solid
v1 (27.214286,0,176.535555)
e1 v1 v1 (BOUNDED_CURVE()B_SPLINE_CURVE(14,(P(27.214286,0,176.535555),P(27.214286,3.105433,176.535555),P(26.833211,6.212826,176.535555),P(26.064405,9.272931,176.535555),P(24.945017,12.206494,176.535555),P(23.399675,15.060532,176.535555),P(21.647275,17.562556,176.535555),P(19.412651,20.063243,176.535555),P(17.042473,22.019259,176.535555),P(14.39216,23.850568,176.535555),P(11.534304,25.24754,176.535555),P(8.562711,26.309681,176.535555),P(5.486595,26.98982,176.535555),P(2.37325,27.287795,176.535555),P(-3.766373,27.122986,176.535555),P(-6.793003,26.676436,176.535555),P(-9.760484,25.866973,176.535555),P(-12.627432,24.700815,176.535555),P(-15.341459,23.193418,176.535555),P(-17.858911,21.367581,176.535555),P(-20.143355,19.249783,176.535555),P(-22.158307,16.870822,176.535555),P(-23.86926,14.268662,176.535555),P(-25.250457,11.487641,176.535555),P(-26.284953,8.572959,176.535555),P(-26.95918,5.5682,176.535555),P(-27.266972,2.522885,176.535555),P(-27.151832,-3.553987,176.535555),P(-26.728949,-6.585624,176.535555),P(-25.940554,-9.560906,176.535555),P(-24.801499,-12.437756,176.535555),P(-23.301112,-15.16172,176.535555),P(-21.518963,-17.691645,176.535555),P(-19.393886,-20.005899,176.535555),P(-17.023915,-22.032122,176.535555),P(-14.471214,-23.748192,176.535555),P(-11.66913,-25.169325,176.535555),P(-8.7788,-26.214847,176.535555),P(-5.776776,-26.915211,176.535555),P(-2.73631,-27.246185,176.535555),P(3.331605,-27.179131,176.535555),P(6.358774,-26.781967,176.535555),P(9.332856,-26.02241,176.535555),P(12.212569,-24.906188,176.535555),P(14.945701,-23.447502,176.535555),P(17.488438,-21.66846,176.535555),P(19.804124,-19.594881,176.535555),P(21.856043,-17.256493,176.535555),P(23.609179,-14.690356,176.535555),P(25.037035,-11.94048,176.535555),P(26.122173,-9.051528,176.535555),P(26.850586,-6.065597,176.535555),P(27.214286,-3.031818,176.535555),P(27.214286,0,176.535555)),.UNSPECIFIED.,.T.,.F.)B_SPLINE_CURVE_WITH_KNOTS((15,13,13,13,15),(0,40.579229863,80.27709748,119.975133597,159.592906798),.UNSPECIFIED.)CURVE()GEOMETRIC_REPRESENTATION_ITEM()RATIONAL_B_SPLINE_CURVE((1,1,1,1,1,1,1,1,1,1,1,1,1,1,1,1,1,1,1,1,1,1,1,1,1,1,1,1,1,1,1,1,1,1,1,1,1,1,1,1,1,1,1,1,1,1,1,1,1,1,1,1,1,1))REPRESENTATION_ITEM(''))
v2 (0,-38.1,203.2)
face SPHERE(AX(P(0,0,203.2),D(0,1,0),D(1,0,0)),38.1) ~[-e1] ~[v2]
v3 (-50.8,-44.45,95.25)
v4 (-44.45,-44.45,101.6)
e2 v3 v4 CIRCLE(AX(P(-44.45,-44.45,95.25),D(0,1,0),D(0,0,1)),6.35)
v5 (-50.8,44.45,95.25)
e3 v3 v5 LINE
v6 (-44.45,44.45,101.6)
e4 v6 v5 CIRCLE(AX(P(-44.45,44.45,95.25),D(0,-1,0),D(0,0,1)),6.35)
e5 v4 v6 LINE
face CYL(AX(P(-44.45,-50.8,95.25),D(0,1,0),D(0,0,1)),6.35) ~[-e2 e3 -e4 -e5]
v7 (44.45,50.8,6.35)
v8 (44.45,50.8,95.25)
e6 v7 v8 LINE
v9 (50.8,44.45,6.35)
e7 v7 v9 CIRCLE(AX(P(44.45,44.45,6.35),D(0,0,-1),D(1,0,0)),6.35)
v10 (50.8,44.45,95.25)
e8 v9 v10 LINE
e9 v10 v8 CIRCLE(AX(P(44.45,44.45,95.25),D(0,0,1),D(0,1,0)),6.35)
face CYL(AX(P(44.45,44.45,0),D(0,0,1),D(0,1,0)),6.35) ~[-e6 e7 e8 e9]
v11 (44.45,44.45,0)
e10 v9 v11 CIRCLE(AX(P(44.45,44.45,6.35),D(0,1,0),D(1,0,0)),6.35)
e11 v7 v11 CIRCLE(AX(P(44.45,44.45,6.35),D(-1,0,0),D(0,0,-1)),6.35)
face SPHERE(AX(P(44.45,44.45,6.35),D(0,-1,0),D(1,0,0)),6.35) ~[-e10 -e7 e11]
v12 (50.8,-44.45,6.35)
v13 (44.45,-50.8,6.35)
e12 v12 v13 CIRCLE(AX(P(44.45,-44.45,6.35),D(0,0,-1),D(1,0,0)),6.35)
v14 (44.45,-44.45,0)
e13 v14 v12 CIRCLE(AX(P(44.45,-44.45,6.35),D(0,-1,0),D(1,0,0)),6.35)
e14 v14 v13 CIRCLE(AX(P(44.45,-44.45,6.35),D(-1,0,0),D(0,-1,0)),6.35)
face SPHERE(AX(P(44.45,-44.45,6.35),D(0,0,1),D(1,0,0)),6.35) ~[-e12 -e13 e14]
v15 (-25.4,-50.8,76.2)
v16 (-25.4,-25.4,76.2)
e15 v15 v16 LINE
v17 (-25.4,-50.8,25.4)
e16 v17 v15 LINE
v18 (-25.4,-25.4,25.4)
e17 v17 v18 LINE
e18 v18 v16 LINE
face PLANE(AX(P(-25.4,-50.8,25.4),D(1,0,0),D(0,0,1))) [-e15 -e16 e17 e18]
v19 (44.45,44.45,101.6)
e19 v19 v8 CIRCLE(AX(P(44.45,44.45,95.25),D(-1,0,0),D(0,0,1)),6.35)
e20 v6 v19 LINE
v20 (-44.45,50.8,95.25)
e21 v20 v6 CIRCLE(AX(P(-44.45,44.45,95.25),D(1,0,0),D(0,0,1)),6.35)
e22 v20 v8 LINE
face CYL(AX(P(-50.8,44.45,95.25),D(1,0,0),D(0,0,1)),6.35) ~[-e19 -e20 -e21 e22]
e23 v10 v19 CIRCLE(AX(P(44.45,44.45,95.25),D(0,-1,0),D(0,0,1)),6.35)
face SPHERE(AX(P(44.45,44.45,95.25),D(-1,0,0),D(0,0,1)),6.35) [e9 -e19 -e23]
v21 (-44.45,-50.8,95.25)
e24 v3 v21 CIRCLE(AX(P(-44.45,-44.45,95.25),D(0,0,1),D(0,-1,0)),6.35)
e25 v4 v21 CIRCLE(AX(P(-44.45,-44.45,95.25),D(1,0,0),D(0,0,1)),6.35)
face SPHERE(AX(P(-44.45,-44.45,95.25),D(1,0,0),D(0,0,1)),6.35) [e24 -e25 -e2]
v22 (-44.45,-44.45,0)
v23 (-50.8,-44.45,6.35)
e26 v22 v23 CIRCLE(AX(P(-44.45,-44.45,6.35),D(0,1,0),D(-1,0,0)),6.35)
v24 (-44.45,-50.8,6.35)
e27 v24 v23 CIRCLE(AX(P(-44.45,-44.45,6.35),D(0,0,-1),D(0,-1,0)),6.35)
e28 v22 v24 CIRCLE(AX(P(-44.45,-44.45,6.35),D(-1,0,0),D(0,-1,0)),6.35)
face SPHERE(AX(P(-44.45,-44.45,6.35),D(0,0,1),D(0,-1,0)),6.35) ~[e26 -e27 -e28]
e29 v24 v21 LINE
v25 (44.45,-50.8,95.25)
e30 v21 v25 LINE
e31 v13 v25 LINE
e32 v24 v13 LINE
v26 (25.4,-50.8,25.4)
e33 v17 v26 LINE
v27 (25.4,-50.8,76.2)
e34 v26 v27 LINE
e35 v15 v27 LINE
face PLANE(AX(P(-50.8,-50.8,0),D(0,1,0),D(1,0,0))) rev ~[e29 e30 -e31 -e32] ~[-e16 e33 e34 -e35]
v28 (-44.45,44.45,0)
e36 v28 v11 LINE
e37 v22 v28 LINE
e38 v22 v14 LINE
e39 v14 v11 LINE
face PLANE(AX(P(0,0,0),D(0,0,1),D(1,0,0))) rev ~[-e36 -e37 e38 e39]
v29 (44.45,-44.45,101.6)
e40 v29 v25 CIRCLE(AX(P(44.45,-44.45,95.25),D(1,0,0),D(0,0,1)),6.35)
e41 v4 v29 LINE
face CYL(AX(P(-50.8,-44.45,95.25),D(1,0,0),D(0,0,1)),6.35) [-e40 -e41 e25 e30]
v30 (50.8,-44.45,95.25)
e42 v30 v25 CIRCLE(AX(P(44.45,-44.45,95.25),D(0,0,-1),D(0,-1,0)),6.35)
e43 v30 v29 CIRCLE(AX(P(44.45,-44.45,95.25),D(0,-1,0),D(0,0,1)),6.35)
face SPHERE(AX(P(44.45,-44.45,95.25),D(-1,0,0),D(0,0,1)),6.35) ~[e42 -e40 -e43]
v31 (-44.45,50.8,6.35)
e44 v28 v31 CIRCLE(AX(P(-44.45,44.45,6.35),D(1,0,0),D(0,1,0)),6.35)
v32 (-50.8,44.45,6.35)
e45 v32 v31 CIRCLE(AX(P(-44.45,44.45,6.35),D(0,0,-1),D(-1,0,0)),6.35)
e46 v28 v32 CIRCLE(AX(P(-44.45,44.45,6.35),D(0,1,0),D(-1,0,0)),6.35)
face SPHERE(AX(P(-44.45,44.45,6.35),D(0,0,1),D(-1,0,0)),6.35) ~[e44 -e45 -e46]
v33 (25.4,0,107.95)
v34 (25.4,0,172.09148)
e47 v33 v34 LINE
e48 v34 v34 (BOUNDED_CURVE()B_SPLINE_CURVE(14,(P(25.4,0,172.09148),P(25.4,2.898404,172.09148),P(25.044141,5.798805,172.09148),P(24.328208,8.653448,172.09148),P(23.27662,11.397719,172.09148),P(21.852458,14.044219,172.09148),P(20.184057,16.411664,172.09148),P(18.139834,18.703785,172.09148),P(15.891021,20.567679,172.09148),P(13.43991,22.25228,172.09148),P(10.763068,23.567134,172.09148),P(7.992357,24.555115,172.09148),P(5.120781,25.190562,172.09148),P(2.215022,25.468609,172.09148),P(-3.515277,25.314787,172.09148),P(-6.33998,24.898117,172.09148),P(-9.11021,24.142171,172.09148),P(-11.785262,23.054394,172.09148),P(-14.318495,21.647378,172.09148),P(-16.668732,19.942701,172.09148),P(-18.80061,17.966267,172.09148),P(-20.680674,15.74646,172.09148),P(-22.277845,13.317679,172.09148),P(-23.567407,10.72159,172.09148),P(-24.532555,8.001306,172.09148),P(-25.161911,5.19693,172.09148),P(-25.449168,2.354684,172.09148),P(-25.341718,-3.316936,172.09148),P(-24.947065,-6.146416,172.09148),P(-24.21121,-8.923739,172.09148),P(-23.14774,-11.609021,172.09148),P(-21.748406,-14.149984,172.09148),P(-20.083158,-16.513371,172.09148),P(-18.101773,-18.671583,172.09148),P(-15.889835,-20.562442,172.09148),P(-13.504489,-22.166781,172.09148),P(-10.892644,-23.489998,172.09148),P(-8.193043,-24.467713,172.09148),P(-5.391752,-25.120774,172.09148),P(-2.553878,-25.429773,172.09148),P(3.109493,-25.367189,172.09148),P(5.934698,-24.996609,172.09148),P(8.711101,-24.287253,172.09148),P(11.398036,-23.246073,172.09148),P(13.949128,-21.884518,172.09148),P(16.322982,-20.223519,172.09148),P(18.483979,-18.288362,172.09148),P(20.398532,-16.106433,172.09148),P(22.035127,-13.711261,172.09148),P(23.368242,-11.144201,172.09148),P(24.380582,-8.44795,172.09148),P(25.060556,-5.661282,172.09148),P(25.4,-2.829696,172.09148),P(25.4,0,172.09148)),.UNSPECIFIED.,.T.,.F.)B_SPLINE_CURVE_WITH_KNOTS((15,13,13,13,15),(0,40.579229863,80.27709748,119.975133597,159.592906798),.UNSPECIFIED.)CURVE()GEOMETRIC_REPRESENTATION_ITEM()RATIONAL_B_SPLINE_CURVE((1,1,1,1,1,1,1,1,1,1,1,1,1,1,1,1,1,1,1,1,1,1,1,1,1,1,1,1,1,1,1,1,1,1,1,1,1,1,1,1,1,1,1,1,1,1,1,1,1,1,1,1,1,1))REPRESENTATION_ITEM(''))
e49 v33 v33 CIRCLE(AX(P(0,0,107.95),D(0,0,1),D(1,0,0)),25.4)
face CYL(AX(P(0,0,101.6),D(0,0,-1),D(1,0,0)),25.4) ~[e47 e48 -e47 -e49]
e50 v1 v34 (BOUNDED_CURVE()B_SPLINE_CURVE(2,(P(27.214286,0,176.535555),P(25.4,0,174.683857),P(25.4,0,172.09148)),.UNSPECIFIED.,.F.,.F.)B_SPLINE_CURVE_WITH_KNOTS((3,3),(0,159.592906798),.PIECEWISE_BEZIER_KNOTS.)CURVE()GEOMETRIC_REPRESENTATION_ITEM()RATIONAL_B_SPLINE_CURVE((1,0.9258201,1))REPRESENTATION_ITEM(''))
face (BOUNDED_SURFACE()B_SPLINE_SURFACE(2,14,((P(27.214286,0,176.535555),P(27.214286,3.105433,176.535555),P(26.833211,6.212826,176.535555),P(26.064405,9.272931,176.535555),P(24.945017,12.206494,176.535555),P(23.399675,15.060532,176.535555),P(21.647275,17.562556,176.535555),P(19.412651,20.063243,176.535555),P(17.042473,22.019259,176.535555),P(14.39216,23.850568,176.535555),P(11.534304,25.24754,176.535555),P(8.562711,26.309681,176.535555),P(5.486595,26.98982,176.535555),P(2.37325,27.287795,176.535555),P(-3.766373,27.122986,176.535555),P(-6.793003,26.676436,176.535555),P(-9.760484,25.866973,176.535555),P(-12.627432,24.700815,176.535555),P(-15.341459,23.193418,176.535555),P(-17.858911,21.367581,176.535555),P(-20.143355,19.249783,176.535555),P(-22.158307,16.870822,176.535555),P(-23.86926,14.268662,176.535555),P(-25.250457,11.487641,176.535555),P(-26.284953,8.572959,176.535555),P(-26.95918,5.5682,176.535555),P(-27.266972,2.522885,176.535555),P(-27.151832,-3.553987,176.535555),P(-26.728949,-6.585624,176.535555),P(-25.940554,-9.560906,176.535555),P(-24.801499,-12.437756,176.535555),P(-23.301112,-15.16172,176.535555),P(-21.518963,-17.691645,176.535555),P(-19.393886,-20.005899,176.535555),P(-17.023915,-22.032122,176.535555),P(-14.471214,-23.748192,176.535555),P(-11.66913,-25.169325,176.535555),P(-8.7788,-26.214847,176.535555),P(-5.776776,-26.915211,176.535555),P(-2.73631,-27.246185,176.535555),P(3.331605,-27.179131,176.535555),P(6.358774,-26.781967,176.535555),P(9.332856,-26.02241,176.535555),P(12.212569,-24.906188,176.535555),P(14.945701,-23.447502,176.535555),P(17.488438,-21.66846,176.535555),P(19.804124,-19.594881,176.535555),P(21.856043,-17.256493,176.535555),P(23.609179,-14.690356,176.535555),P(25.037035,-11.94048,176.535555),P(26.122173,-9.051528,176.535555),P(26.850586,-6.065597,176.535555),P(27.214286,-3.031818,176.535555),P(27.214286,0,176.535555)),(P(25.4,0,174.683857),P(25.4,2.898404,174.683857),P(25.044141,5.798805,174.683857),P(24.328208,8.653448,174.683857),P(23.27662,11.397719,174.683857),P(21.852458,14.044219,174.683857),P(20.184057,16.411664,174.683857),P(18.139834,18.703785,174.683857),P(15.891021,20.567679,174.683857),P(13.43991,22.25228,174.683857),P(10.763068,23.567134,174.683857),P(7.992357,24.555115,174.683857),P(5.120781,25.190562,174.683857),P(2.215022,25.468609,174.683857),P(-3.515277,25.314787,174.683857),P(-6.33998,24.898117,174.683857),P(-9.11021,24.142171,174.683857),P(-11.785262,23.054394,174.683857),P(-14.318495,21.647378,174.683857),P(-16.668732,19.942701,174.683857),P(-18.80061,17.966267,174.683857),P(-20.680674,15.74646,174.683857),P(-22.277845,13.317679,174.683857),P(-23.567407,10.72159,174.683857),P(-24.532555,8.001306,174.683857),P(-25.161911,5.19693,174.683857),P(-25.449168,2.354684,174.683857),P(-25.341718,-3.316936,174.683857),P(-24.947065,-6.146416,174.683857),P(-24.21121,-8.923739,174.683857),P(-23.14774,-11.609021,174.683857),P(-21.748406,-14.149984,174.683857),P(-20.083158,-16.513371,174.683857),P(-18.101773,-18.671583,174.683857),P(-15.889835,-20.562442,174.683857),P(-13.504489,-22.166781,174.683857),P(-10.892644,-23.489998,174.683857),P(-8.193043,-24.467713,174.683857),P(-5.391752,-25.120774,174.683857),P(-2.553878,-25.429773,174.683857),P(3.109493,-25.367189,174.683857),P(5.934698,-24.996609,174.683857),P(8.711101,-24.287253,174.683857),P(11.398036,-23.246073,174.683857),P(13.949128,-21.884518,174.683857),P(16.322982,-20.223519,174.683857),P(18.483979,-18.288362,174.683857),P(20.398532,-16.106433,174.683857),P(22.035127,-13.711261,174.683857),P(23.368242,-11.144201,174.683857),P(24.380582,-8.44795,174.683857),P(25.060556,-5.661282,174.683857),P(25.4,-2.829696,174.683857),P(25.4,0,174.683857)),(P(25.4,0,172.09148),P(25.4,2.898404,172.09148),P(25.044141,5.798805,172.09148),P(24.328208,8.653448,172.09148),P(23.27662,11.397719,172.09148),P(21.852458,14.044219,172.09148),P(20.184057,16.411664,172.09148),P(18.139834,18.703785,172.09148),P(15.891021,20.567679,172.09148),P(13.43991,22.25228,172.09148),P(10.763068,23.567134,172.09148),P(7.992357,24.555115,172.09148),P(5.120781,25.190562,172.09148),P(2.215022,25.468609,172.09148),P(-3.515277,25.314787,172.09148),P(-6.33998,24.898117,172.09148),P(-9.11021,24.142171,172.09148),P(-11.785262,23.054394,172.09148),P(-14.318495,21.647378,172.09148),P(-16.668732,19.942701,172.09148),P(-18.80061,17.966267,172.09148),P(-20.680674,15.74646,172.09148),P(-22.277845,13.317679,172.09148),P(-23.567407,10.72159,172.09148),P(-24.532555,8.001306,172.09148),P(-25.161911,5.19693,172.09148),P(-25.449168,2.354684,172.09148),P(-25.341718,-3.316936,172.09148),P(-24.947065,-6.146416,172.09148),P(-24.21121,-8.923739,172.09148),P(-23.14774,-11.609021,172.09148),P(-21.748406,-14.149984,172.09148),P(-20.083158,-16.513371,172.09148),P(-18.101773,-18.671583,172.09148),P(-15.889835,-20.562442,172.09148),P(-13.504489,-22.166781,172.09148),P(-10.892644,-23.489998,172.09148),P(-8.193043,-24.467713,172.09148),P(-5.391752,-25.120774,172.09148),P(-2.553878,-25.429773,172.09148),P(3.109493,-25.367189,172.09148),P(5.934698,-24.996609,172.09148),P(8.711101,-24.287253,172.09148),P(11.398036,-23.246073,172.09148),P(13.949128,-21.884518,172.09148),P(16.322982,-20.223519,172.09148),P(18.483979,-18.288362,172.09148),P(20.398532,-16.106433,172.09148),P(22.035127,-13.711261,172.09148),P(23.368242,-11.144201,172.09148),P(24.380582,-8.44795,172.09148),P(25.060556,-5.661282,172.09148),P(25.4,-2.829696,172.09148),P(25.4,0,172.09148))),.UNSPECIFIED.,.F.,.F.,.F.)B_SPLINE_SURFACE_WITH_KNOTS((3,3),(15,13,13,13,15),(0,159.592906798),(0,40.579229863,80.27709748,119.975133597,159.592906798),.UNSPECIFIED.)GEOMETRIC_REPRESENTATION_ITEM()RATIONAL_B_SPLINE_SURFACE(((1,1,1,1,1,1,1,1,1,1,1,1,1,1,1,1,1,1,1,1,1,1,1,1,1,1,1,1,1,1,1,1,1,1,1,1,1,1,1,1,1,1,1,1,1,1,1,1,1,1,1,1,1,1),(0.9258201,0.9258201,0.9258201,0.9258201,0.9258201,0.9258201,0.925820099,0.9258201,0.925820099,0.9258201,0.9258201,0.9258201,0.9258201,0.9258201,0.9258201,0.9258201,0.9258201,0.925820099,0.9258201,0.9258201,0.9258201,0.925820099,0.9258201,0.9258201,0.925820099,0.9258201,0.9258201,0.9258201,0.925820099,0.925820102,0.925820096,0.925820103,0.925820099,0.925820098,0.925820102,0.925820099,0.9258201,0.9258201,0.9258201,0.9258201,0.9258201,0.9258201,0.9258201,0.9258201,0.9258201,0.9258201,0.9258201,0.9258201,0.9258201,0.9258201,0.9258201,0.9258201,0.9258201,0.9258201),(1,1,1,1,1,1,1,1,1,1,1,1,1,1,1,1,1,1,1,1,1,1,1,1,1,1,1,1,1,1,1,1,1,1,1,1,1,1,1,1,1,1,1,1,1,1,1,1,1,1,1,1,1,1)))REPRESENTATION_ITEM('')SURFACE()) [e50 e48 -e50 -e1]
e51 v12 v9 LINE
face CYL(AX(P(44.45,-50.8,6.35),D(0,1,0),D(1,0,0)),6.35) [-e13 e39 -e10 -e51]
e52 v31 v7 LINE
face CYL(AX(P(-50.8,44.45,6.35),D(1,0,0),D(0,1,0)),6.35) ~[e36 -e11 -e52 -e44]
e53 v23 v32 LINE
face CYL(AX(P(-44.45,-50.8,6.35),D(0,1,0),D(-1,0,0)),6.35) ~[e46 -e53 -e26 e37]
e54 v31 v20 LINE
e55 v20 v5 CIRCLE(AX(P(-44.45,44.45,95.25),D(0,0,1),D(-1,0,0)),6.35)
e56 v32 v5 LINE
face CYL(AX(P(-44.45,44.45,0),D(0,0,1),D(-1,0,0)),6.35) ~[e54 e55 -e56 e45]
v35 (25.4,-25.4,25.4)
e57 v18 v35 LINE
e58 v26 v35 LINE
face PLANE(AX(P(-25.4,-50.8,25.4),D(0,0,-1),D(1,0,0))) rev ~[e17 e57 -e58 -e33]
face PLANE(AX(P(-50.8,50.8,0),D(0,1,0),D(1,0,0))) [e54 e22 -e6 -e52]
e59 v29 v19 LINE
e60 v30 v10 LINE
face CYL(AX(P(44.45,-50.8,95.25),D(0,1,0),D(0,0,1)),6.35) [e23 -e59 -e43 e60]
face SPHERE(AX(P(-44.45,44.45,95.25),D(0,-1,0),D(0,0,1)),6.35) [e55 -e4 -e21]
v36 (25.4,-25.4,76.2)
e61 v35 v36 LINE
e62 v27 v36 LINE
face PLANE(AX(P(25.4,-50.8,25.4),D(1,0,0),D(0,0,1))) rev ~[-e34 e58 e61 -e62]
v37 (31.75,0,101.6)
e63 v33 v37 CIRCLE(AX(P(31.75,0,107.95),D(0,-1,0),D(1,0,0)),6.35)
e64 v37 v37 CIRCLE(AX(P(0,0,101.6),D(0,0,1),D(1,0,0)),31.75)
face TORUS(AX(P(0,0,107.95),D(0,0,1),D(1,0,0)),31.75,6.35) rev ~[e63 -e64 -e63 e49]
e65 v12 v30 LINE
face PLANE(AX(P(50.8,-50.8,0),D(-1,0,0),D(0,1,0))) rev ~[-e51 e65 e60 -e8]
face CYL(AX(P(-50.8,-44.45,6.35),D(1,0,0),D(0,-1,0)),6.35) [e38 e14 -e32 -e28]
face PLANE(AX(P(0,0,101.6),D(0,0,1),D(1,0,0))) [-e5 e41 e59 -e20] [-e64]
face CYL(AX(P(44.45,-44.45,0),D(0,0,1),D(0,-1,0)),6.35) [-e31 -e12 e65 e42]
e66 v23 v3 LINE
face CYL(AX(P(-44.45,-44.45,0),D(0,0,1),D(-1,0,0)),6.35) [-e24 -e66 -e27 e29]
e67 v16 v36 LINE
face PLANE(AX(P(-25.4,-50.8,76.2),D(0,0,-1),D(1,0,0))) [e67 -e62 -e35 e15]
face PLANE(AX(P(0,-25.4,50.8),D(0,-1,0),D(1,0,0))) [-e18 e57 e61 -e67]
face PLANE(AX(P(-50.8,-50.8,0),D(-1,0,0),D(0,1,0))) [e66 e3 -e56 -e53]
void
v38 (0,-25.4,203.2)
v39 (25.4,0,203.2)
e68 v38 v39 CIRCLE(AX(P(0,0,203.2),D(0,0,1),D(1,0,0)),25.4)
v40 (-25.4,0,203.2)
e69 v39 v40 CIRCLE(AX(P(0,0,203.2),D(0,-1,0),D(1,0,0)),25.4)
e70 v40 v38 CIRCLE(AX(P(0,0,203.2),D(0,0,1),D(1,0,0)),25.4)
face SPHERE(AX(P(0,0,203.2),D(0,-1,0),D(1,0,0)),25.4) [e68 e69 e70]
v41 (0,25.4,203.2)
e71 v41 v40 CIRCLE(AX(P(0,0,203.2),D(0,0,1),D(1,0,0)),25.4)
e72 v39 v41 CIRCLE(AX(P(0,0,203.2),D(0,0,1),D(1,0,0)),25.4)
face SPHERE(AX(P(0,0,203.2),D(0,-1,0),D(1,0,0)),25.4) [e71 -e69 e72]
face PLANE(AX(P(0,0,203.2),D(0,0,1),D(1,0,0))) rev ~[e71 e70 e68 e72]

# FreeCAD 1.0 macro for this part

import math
import FreeCAD as App
import Part
import Sketcher
from FreeCAD import Vector
Q = App.Units.Quantity


def edges_at(feature, points):
    """Names of the edges that pass closest to the given points."""
    edges = feature.Shape.Edges
    near = lambda p: min(range(len(edges)), key=lambda i: edges[i].distToShape(Part.Vertex(*p))[0])
    return sorted({f"Edge{near(p) + 1}" for p in points})


def add_polygon(sketch, points):
    """Adds a closed chain of lines whose ends are joined by coincident constraints."""
    first, n = sketch.GeometryCount, len(points)
    for a, b in zip(points, points[1:] + points[:1]):
        sketch.addGeometry(Part.LineSegment(App.Vector(*a, 0), App.Vector(*b, 0)), False)
    for i in range(n):
        sketch.addConstraint(Sketcher.Constraint("Coincident", first + i, 2, first + (i + 1) % n, 1))

doc = App.newDocument("Part")
body = doc.addObject("PartDesign::Body", "Body")

# Sketch on XY plane
sketch1 = doc.addObject("Sketcher::SketchObject", "Sketch")
body.addObject(sketch1)
sketch1.AttachmentSupport = (doc.XY_Plane, [""])
sketch1.MapMode = "FlatFace"
add_polygon(sketch1, [(-51, 51), (-51, -51), (51, -51), (51, 51)])  # lines 0-3
sketch1.addConstraint(Sketcher.Constraint("Vertical", 0))
sketch1.addConstraint(Sketcher.Constraint("Horizontal", 1))
sketch1.addConstraint(Sketcher.Constraint("Vertical", 2))
sketch1.addConstraint(Sketcher.Constraint("Horizontal", 3))
sketch1.addConstraint(Sketcher.Constraint("Symmetric", 0, 2, 2, 2, -1, 1))
sketch1.addConstraint(Sketcher.Constraint("Equal", 3, 0))
sketch1.addConstraint(Sketcher.Constraint("DistanceX", 1, 1, 1, 2, Q("4 in")))
pad1 = doc.addObject("PartDesign::Pad", "Pad")
body.addObject(pad1)
pad1.Profile = sketch1
pad1.Length = Q("4 in")

# Sketch on XY plane
sketch2 = doc.addObject("Sketcher::SketchObject", "Sketch001")
body.addObject(sketch2)
sketch2.AttachmentSupport = (doc.XY_Plane, [""])
sketch2.MapMode = "FlatFace"
sketch2.AttachmentOffset = App.Placement(Vector(0, 0, 4 * 25.4), App.Rotation())
sketch2.addGeometry(Part.Circle(Vector(0, 0, 0), Vector(0, 0, 1), 25), False)
sketch2.addConstraint(Sketcher.Constraint("Coincident", 0, 3, -1, 1))
sketch2.addConstraint(Sketcher.Constraint("Diameter", 0, Q("2 in")))
pad2 = doc.addObject("PartDesign::Pad", "Pad001")
body.addObject(pad2)
pad2.Profile = sketch2
pad2.Length = Q("4 in")

# Sketch on XZ plane
sketch3 = doc.addObject("Sketcher::SketchObject", "Sketch002")
body.addObject(sketch3)
sketch3.AttachmentSupport = (doc.XZ_Plane, [""])
sketch3.MapMode = "FlatFace"
sketch3.AttachmentOffset = App.Placement(Vector(0, 0, 2 * 25.4), App.Rotation())
add_polygon(sketch3, [(-25, 76), (-25, 25), (25, 25), (25, 76)])  # lines 0-3
sketch3.addConstraint(Sketcher.Constraint("Vertical", 0))
sketch3.addConstraint(Sketcher.Constraint("Horizontal", 1))
sketch3.addConstraint(Sketcher.Constraint("Vertical", 2))
sketch3.addConstraint(Sketcher.Constraint("Horizontal", 3))
sketch3.addConstraint(Sketcher.Constraint("Equal", 3, 0))
sketch3.addConstraint(Sketcher.Constraint("DistanceX", 1, 1, 1, 2, Q("2 in")))
sketch3.addConstraint(Sketcher.Constraint("DistanceX", 0, 2, -1, 1, Q("1 in")))
sketch3.addConstraint(Sketcher.Constraint("DistanceY", -1, 1, 0, 2, Q("1 in")))
pocket1 = doc.addObject("PartDesign::Pocket", "Pocket")
body.addObject(pocket1)
pocket1.Profile = sketch3
pocket1.Length = Q("1 in")

# Sketch on XY plane
sketch4 = doc.addObject("Sketcher::SketchObject", "Sketch003")
body.addObject(sketch4)
sketch4.AttachmentSupport = (doc.XY_Plane, [""])
sketch4.MapMode = "FlatFace"
sketch4.AttachmentOffset = App.Placement(Vector(0, 0, 8 * 25.4), App.Rotation())
sketch4.addGeometry(Part.LineSegment(Vector(0, -25, 0), Vector(0, -38, 0)), False)
sketch4.addGeometry(Part.ArcOfCircle(Part.Circle(Vector(0, 0, 0), Vector(0, 0, 1), 38), math.radians(-90), math.radians(90)), False)
sketch4.addGeometry(Part.LineSegment(Vector(0, 38, 0), Vector(0, 25, 0)), False)
sketch4.addGeometry(Part.ArcOfCircle(Part.Circle(Vector(0, 0, 0), Vector(0, 0, 1), 25), math.radians(0), math.radians(90)), False)
sketch4.addGeometry(Part.ArcOfCircle(Part.Circle(Vector(0, 0, 0), Vector(0, 0, 1), 25), math.radians(-90), math.radians(0)), False)
sketch4.addConstraint(Sketcher.Constraint("Coincident", 0, 2, 1, 1))
sketch4.addConstraint(Sketcher.Constraint("Coincident", 1, 2, 2, 1))
sketch4.addConstraint(Sketcher.Constraint("Coincident", 2, 2, 3, 2))
sketch4.addConstraint(Sketcher.Constraint("Tangent", 3, 1, 4, 2))
sketch4.addConstraint(Sketcher.Constraint("Coincident", 4, 1, 0, 1))
sketch4.addConstraint(Sketcher.Constraint("Vertical", 0))
sketch4.addConstraint(Sketcher.Constraint("Vertical", 2))
sketch4.addConstraint(Sketcher.Constraint("Coincident", 1, 3, -1, 1))
sketch4.addConstraint(Sketcher.Constraint("Coincident", 3, 3, -1, 1))
sketch4.addConstraint(Sketcher.Constraint("Equal", 3, 4))
sketch4.addConstraint(Sketcher.Constraint("PointOnObject", 0, 2, -2))
sketch4.addConstraint(Sketcher.Constraint("PointOnObject", 1, 2, -2))
sketch4.addConstraint(Sketcher.Constraint("PointOnObject", 3, 1, -1))
sketch4.addConstraint(Sketcher.Constraint("Radius", 3, Q("1 in")))
sketch4.addConstraint(Sketcher.Constraint("Radius", 1, Q("1.5 in")))
revolution = doc.addObject("PartDesign::Revolution", "Revolution")
body.addObject(revolution)
revolution.Profile = sketch4
revolution.ReferenceAxis = (sketch4, ["V_Axis"])
revolution.Angle = 360
doc.recompute()

fillet = doc.addObject("PartDesign::Fillet", "Fillet")
body.addObject(fillet)
fillet.Base = (revolution, edges_at(revolution, [
    (0, -50.8, 101.6),
    (-50.8, 0, 101.6),
    (0, 50.8, 101.6),
    (50.8, 0, 101.6),
    (50.8, -50.8, 50.8),
    (-50.8, -50.8, 50.8),
    (50.8, 0, 0),
    (0, -50.8, 0),
    (50.8, 50.8, 50.8),
    (-25.4, 0, 174.802),
    (-25.4, 0, 101.6),
    (25.4, 0, 138.201),
    (-50.8, 50.8, 50.8),
    (-50.8, 0, 0),
    (0, 50.8, 0),
]))
fillet.Radius = Q("0.25 in")

doc.recompute()
